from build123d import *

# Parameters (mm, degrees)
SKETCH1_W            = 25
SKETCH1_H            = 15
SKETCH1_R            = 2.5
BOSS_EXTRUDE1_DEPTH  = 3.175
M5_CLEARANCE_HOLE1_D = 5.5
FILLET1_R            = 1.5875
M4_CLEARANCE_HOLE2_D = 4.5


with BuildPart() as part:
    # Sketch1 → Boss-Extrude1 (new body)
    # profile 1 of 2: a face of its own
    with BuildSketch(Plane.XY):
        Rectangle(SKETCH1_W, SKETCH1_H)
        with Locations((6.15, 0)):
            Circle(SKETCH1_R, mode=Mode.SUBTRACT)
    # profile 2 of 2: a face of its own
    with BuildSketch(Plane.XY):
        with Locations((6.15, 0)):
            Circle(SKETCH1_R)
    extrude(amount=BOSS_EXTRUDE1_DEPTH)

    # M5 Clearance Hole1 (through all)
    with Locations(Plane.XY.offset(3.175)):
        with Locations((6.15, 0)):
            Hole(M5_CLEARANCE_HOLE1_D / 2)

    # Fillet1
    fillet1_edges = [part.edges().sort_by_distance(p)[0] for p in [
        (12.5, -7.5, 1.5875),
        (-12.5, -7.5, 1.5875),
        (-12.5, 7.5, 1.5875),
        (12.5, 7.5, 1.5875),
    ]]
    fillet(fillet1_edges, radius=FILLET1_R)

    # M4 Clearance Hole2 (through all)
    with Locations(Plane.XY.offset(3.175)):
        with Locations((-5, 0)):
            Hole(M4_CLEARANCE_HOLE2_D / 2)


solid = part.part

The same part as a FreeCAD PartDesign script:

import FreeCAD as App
import Part
import Sketcher
Q = App.Units.Quantity


def edges_at(feature, points):
    """Names of the edges that pass closest to the given points."""
    edges = feature.Shape.Edges
    near = lambda p: min(range(len(edges)), key=lambda i: edges[i].distToShape(Part.Vertex(*p))[0])
    return sorted({f"Edge{near(p) + 1}" for p in points})


def add_polygon(sketch, points):
    """Adds a closed chain of lines whose ends are joined by coincident constraints."""
    first, n = sketch.GeometryCount, len(points)
    for a, b in zip(points, points[1:] + points[:1]):
        sketch.addGeometry(Part.LineSegment(App.Vector(*a, 0), App.Vector(*b, 0)), False)
    for i in range(n):
        sketch.addConstraint(Sketcher.Constraint("Coincident", first + i, 2, first + (i + 1) % n, 1))

doc = App.newDocument("Part")
params = doc.addObject("Spreadsheet::Sheet", "Params")
for row, (alias, value) in enumerate([
    ("sketch1_width", "25 mm"),
    ("sketch1_height", "15 mm"),
    ("pad1_length", "3.175 mm"),
    ("sketch2_diameter", "5.5 mm"),
    ("hole_diameter", "5.5 mm"),
    ("fillet_radius", "1.5875 mm"),
    ("sketch3_diameter", "4.5 mm"),
    ("hole2_diameter", "4.5 mm"),
], start=1):
    params.set(f"A{row}", alias)
    params.set(f"B{row}", "=" + value)
    params.setAlias(f"B{row}", alias)

body = doc.addObject("PartDesign::Body", "Body")

sketch1 = body.newObject("Sketcher::SketchObject", "Sketch")
sketch1.AttachmentSupport = (doc.getObject("XY_Plane"), [""])
sketch1.MapMode = "FlatFace"
add_polygon(sketch1, [(-12.5, 7.5), (-12.5, -7.5), (12.5, -7.5), (12.5, 7.5)])
sketch1.addConstraint([
    Sketcher.Constraint("Vertical", 0),
    Sketcher.Constraint("Horizontal", 1),
    Sketcher.Constraint("Vertical", 2),
    Sketcher.Constraint("Horizontal", 3),
    Sketcher.Constraint("Symmetric", 0, 2, 2, 2, -1, 1),
    Sketcher.Constraint("DistanceX", 1, 1, 1, 2, Q("25 mm")),
    Sketcher.Constraint("DistanceY", 0, 2, 0, 1, Q("15 mm")),
])
sketch1.setExpression("Constraints[9]", "Params.sketch1_width")
sketch1.setExpression("Constraints[10]", "Params.sketch1_height")
pad1 = body.newObject("PartDesign::Pad", "Pad")
pad1.Profile = sketch1
pad1.setExpression("Length", "Params.pad1_length")

sketch2 = body.newObject("Sketcher::SketchObject", "Sketch001")
sketch2.AttachmentSupport = (doc.getObject("XY_Plane"), [""])
sketch2.MapMode = "FlatFace"
sketch2.AttachmentOffset = App.Placement(App.Vector(0, 0, 3.175), App.Rotation())
sketch2.addGeometry(Part.Circle(App.Vector(6.15, 0, 0), App.Vector(0, 0, 1), 2.75), False)
sketch2.addConstraint([
    Sketcher.Constraint("PointOnObject", 0, 3, -1),
    Sketcher.Constraint("Diameter", 0, Q("5.5 mm")),
    Sketcher.Constraint("DistanceX", -1, 1, 0, 3, Q("6.15 mm")),
])
sketch2.setExpression("Constraints[1]", "Params.sketch2_diameter")
doc.recompute()
hole = body.newObject("PartDesign::Hole", "Hole")
hole.Profile = sketch2
hole.ThreadType = "None"
hole.setExpression("Diameter", "Params.hole_diameter")
hole.DepthType = "ThroughAll"
doc.recompute()

fillet = body.newObject("PartDesign::Fillet", "Fillet")
fillet.Base = (hole, edges_at(hole, [
    (12.5, -7.5, 1.587),
    (-12.5, -7.5, 1.587),
    (-12.5, 7.5, 1.587),
    (12.5, 7.5, 1.587),
]))
fillet.setExpression("Radius", "Params.fillet_radius")

sketch3 = body.newObject("Sketcher::SketchObject", "Sketch002")
sketch3.AttachmentSupport = (doc.getObject("XY_Plane"), [""])
sketch3.MapMode = "FlatFace"
sketch3.AttachmentOffset = App.Placement(App.Vector(0, 0, 3.175), App.Rotation())
sketch3.addGeometry(Part.Circle(App.Vector(-5, 0, 0), App.Vector(0, 0, 1), 2.25), False)
sketch3.addConstraint([
    Sketcher.Constraint("PointOnObject", 0, 3, -1),
    Sketcher.Constraint("Diameter", 0, Q("4.5 mm")),
    Sketcher.Constraint("DistanceX", 0, 3, -1, 1, Q("5 mm")),
])
sketch3.setExpression("Constraints[1]", "Params.sketch3_diameter")
doc.recompute()
hole2 = body.newObject("PartDesign::Hole", "Hole001")
hole2.Profile = sketch3
hole2.ThreadType = "None"
hole2.setExpression("Diameter", "Params.hole2_diameter")
hole2.DepthType = "ThroughAll"

doc.recompute()
